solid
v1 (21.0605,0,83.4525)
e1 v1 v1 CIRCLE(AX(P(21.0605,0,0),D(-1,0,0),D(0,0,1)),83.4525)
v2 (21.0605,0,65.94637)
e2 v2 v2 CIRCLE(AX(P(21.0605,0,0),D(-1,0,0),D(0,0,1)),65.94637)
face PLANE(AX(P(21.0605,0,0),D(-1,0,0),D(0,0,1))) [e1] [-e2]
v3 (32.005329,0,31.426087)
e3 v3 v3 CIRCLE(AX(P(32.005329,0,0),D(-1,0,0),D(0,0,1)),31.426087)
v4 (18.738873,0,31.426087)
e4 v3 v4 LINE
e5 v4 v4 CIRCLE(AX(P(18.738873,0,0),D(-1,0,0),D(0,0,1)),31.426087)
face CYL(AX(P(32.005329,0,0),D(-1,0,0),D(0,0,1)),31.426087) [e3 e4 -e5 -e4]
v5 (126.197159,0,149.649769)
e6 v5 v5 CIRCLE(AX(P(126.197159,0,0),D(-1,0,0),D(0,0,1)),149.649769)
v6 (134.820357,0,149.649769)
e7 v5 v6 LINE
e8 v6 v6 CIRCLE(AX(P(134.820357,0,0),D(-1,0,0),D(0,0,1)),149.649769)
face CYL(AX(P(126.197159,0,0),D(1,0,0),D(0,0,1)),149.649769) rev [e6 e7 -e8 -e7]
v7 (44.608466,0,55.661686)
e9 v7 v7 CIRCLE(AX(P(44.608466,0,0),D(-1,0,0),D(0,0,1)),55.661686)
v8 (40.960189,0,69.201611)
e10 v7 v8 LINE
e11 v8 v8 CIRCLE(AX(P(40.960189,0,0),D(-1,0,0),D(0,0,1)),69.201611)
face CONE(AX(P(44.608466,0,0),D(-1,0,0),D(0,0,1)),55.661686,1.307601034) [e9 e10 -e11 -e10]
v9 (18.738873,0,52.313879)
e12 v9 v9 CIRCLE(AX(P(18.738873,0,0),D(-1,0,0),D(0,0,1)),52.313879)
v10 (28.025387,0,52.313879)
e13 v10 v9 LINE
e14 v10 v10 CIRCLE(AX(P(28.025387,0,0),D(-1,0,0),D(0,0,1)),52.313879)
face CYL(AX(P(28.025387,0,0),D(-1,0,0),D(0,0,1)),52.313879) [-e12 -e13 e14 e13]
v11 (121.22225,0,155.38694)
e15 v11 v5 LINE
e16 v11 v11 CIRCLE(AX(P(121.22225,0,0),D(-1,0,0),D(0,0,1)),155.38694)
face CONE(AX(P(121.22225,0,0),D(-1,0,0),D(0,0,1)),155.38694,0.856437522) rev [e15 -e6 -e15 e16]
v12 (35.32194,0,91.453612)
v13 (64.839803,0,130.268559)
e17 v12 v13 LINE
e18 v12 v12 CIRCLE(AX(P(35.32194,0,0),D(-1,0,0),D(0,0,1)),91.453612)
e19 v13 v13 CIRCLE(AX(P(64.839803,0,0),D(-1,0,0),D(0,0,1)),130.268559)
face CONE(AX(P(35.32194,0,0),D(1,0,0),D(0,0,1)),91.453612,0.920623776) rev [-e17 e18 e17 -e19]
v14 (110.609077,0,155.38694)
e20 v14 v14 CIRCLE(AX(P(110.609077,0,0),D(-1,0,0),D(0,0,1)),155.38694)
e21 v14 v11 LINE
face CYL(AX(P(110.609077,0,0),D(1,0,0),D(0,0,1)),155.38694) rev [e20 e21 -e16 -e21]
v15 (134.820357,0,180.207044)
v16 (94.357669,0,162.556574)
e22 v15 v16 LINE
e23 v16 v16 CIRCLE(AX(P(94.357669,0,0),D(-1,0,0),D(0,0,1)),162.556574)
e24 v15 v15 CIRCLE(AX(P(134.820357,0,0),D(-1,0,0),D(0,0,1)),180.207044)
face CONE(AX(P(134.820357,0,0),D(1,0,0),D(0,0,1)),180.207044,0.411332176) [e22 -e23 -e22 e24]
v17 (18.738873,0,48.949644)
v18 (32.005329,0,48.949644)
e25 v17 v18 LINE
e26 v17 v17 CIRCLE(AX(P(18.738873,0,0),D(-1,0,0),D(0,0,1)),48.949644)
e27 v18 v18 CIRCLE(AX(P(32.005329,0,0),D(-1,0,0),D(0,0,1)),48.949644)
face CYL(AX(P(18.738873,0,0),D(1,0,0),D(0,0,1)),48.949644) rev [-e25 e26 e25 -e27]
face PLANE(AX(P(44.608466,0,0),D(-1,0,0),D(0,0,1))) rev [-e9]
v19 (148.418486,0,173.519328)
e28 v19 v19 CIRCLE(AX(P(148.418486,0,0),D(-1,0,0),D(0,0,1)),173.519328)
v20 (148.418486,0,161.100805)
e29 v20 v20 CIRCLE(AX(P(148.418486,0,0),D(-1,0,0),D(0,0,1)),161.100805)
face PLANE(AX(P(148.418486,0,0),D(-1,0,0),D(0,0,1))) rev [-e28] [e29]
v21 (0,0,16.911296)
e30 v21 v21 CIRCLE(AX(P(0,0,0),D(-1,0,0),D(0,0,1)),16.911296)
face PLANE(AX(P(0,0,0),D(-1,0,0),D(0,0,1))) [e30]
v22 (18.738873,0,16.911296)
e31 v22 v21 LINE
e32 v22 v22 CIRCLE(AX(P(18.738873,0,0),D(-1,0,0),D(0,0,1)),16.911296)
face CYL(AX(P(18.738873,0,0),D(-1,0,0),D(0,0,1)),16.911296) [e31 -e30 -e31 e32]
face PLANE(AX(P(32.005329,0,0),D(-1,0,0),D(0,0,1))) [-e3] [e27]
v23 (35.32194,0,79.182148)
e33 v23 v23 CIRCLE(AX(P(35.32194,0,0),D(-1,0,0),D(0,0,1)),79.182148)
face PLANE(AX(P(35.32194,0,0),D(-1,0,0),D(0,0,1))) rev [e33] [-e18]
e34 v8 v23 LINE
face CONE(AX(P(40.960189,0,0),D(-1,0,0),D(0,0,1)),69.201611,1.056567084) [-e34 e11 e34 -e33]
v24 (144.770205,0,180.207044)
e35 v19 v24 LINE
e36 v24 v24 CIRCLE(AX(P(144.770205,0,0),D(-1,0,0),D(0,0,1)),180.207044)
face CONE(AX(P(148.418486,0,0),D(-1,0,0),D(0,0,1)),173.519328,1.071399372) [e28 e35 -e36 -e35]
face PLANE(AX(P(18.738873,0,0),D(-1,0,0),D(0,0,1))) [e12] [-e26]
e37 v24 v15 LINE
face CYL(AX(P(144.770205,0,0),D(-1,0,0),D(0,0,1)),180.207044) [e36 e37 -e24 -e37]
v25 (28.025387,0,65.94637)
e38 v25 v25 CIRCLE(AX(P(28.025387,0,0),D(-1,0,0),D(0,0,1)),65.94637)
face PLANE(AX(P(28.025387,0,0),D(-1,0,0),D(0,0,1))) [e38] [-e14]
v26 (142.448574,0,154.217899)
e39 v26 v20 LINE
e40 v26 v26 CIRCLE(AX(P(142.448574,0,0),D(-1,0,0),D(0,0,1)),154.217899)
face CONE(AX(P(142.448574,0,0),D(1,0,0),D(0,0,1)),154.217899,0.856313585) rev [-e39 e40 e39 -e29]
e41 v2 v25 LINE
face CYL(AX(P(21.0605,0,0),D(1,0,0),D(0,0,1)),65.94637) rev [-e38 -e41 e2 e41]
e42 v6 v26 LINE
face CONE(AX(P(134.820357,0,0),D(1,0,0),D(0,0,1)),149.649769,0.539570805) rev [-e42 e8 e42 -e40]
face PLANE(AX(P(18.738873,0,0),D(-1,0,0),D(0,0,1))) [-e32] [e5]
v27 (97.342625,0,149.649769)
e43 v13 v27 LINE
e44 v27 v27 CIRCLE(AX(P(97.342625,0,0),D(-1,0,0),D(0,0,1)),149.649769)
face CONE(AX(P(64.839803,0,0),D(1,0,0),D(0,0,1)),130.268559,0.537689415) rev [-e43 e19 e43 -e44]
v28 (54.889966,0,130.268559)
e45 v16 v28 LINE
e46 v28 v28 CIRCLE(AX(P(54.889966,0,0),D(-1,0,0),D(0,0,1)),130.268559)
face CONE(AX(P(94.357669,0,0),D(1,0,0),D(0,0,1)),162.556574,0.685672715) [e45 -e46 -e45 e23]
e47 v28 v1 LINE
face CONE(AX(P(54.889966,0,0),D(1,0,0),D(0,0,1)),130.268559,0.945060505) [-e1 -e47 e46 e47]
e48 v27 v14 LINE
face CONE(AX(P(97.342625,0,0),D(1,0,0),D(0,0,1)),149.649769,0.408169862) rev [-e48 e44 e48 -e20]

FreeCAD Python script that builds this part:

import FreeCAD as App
import Part
import Sketcher
from FreeCAD import Vector


def add_polygon(sketch, points):
    """Adds a closed chain of lines whose ends are joined by coincident constraints."""
    first, n = sketch.GeometryCount, len(points)
    for a, b in zip(points, points[1:] + points[:1]):
        sketch.addGeometry(Part.LineSegment(App.Vector(*a, 0), App.Vector(*b, 0)), False)
    for i in range(n):
        sketch.addConstraint(Sketcher.Constraint("Coincident", first + i, 2, first + (i + 1) % n, 1))

doc = App.newDocument("Part")
body = doc.addObject("PartDesign::Body", "Body")

sketch1 = doc.addObject("Sketcher::SketchObject", "Sketch")
body.addObject(sketch1)
sketch1.AttachmentSupport = (doc.XZ_Plane, [""])
sketch1.MapMode = "FlatFace"
add_polygon(sketch1, [(0, 16.911296), (0, 0), (44.608466, 0), (44.608466, 55.661686), (40.960189, 69.201611), (35.32194, 79.182148), (35.32194, 91.453612), (64.839803, 130.268559), (97.342625, 149.649769), (110.609077, 155.38694), (121.22225, 155.38694), (126.197159, 149.649769), (134.820357, 149.649769), (142.448574, 154.217899), (148.418486, 161.100805), (148.418486, 173.519328), (144.770205, 180.207044), (134.820357, 180.207044), (94.357669, 162.556574), (54.889966, 130.268559), (21.0605, 83.4525), (21.0605, 65.94637), (28.025387, 65.94637), (28.025387, 52.313879), (18.738873, 52.313879), (18.738873, 48.949644), (32.005329, 48.949644), (32.005329, 31.426087), (18.738873, 31.426087), (18.738873, 16.911296)])
sketch1.addConstraint([
    Sketcher.Constraint("Vertical", 0),
    Sketcher.Constraint("Horizontal", 1),
    Sketcher.Constraint("Vertical", 2),
    Sketcher.Constraint("Vertical", 5),
    Sketcher.Constraint("Horizontal", 9),
    Sketcher.Constraint("Horizontal", 11),
    Sketcher.Constraint("Vertical", 14),
    Sketcher.Constraint("Horizontal", 16),
    Sketcher.Constraint("Vertical", 20),
    Sketcher.Constraint("Horizontal", 21),
    Sketcher.Constraint("Vertical", 22),
    Sketcher.Constraint("Horizontal", 23),
    Sketcher.Constraint("Vertical", 24),
    Sketcher.Constraint("Horizontal", 25),
    Sketcher.Constraint("Vertical", 26),
    Sketcher.Constraint("Horizontal", 27),
    Sketcher.Constraint("Vertical", 28),
    Sketcher.Constraint("Horizontal", 29),
    Sketcher.Constraint("Coincident", 0, 2, -1, 1),
    Sketcher.Constraint("Horizontal", 7, 2, 10, 2),
    Sketcher.Constraint("Horizontal", 6, 2, 18, 2),
    Sketcher.Constraint("Vertical", 11, 2, 16, 2),
    Sketcher.Constraint("Vertical", 24, 2, 27, 2),
    Sketcher.Constraint("DistanceX", 11, 1, 11, 2, 8.623198),
    Sketcher.Constraint("DistanceY", 3, 2, 5, 2, 22.252001),
    Sketcher.Constraint("DistanceX", 16, 2, 16, 1, 9.949848),
    Sketcher.Constraint("DistanceY", 20, 2, 20, 1, 17.50613),
    Sketcher.Constraint("DistanceY", 22, 2, 22, 1, 13.632491),
    Sketcher.Constraint("DistanceY", 28, 2, 28, 1, 14.514791),
    Sketcher.Constraint("DistanceY", -1, 1, 12, 2, 154.217899),
    Sketcher.Constraint("DistanceX", -1, 1, 19, 2, 21.0605),
    Sketcher.Constraint("DistanceY", -1, 1, 19, 2, 83.4525),
    Sketcher.Constraint("DistanceY", 26, 2, 2, 2, 24.235599),
    Sketcher.Constraint("Distance", 3, 14.02282),
    Sketcher.Constraint("Distance", 6, 48.763761),
    Sketcher.Constraint("Distance", 7, 37.842631),
    Sketcher.Constraint("Distance", 12, 8.891429),
    Sketcher.Constraint("Distance", 18, 50.992308),
    Sketcher.Constraint("Distance", 19, 57.759641),
    Sketcher.Constraint("DistanceX", 1, 1, 1, 2, 44.608466),
    Sketcher.Constraint("DistanceX", 9, 1, 9, 2, 10.613173),
    Sketcher.Constraint("DistanceX", 21, 1, 21, 2, 6.964887),
    Sketcher.Constraint("DistanceX", 23, 2, 23, 1, 9.286514),
    Sketcher.Constraint("DistanceX", 25, 1, 25, 2, 13.266456),
    Sketcher.Constraint("DistanceY", 0, 2, 0, 1, 16.911296),
    Sketcher.Constraint("DistanceY", 5, 1, 5, 2, 12.271464),
    Sketcher.Constraint("DistanceY", 14, 1, 14, 2, 12.418523),
    Sketcher.Constraint("DistanceY", 24, 2, 24, 1, 3.364235),
    Sketcher.Constraint("DistanceX", -1, 1, 3, 2, 40.960189),
    Sketcher.Constraint("DistanceX", -1, 1, 4, 2, 35.32194),
    Sketcher.Constraint("DistanceY", -1, 1, 6, 2, 130.268559),
    Sketcher.Constraint("DistanceY", -1, 1, 7, 2, 149.649769),
    Sketcher.Constraint("DistanceY", -1, 1, 8, 2, 155.38694),
    Sketcher.Constraint("DistanceX", -1, 1, 9, 2, 121.22225),
    Sketcher.Constraint("DistanceX", -1, 1, 10, 2, 126.197159),
    Sketcher.Constraint("DistanceY", -1, 1, 14, 2, 173.519328),
    Sketcher.Constraint("DistanceX", -1, 1, 17, 2, 94.357669),
    Sketcher.Constraint("DistanceX", 12, 2, 13, 2, 5.969912),
    Sketcher.Constraint("DistanceY", 13, 2, 15, 2, 19.106239),
])
revolution = doc.addObject("PartDesign::Revolution", "Revolution")
body.addObject(revolution)
revolution.Profile = sketch1
revolution.ReferenceAxis = (sketch1, ["H_Axis"])
revolution.Angle = 360

doc.recompute()
